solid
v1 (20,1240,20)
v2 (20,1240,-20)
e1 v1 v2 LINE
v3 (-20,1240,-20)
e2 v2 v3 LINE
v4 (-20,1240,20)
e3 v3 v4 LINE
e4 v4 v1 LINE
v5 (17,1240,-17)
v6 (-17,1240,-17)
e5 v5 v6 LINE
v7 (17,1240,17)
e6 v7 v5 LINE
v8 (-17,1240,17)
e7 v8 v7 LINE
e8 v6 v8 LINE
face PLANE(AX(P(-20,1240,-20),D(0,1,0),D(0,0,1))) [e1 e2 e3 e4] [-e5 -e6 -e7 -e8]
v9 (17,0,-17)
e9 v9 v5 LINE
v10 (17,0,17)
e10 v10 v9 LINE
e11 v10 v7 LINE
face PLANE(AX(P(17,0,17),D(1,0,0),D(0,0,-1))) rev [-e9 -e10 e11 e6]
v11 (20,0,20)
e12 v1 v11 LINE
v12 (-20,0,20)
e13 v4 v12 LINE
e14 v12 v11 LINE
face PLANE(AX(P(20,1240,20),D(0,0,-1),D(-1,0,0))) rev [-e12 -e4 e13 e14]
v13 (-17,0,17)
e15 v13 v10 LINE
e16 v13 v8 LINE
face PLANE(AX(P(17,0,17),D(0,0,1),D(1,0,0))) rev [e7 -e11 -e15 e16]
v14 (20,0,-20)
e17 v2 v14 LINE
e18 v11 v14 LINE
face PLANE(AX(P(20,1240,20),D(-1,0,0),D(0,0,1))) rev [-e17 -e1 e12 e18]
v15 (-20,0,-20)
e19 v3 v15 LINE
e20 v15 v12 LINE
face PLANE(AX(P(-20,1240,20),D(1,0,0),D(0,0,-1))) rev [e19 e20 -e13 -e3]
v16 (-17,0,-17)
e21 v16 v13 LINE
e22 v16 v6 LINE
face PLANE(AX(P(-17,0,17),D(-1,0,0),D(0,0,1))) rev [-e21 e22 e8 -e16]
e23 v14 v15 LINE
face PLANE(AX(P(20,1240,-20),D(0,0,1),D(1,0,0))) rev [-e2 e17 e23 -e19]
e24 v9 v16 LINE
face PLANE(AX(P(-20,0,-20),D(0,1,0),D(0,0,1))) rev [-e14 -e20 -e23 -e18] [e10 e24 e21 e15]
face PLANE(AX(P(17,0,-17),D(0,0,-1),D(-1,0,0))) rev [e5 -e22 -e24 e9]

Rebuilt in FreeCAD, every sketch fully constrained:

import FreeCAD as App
import Part
import Sketcher

V = App.Vector


def add_polygon(sketch, points):
    """Adds a closed chain of lines whose ends are joined by coincident constraints."""
    first, n = sketch.GeometryCount, len(points)
    for a, b in zip(points, points[1:] + points[:1]):
        sketch.addGeometry(Part.LineSegment(App.Vector(*a, 0), App.Vector(*b, 0)), False)
    for i in range(n):
        sketch.addConstraint(Sketcher.Constraint("Coincident", first + i, 2, first + (i + 1) % n, 1))

doc = App.newDocument("Part")
body = doc.addObject("PartDesign::Body", "Body")

sketch1 = doc.addObject("Sketcher::SketchObject", "Sketch")
body.addObject(sketch1)
sketch1.AttachmentSupport = (doc.XZ_Plane, [""])
sketch1.MapMode = "FlatFace"
add_polygon(sketch1, [(-20, -20), (-20, 20), (20, 20), (20, -20)])
sketch1.addConstraint([
    Sketcher.Constraint("Vertical", 0),
    Sketcher.Constraint("Horizontal", 1),
    Sketcher.Constraint("Vertical", 2),
    Sketcher.Constraint("Horizontal", 3),
    Sketcher.Constraint("Symmetric", 0, 2, 2, 2, -1, 1),
    Sketcher.Constraint("Equal", 3, 0),
    Sketcher.Constraint("DistanceX", 1, 1, 1, 2, 40.0),
])
pad1 = doc.addObject("PartDesign::Pad", "Pad")
body.addObject(pad1)
pad1.Profile = sketch1
pad1.Length = 1240
pad1.Reversed = True

sketch2 = doc.addObject("Sketcher::SketchObject", "Sketch001")
body.addObject(sketch2)
sketch2.AttachmentSupport = (doc.XZ_Plane, [""])
sketch2.MapMode = "FlatFace"
sketch2.AttachmentOffset = App.Placement(V(0, 0, -1240), App.Rotation())
add_polygon(sketch2, [(-17, -17), (-17, 17), (17, 17), (17, -17)])
sketch2.addConstraint([
    Sketcher.Constraint("Vertical", 0),
    Sketcher.Constraint("Horizontal", 1),
    Sketcher.Constraint("Vertical", 2),
    Sketcher.Constraint("Horizontal", 3),
    Sketcher.Constraint("Symmetric", 0, 2, 2, 2, -1, 1),
    Sketcher.Constraint("Equal", 3, 0),
    Sketcher.Constraint("DistanceX", 1, 1, 1, 2, 34.0),
])
pocket1 = doc.addObject("PartDesign::Pocket", "Pocket")
body.addObject(pocket1)
pocket1.Profile = sketch2
pocket1.Type = "ThroughAll"
pocket1.Reversed = True

doc.recompute()
